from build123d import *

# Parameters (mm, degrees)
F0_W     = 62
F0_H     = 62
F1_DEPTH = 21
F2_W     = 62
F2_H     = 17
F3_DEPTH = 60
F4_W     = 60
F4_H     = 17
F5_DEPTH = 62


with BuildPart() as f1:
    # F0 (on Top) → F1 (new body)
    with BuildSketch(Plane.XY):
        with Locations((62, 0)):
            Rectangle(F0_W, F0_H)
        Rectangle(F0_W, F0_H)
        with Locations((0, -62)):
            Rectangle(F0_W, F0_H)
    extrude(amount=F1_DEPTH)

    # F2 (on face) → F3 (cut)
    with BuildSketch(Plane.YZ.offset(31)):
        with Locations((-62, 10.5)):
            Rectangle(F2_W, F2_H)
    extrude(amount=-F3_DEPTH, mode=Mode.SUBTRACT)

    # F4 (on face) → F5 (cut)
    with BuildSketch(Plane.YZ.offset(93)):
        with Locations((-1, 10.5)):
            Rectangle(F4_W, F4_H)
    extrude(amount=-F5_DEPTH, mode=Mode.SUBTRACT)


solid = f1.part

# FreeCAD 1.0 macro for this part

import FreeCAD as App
import Part
import Sketcher
Q = App.Units.Quantity

doc = App.newDocument("Part")
body = doc.addObject("PartDesign::Body", "Body")

# Sketch on XY plane
sketch1 = doc.addObject("Sketcher::SketchObject", "Sketch")
body.addObject(sketch1)
sketch1.AttachmentSupport = (doc.XY_Plane, [""])
sketch1.MapMode = "FlatFace"
sketch1.addGeometry([
    Part.LineSegment(App.Vector(93, -31, 0), App.Vector(93, 31, 0)),  # 0
    Part.LineSegment(App.Vector(93, 31, 0), App.Vector(-31, 31, 0)),  # 1
    Part.LineSegment(App.Vector(-31, 31, 0), App.Vector(-31, -93, 0)),  # 2
    Part.LineSegment(App.Vector(-31, -93, 0), App.Vector(31, -93, 0)),  # 3
    Part.LineSegment(App.Vector(31, -93, 0), App.Vector(31, -31, 0)),  # 4
    Part.LineSegment(App.Vector(31, -31, 0), App.Vector(93, -31, 0)),  # 5
], False)
sketch1.addConstraint([
    Sketcher.Constraint("Coincident", 0, 2, 1, 1),
    Sketcher.Constraint("Coincident", 1, 2, 2, 1),
    Sketcher.Constraint("Coincident", 2, 2, 3, 1),
    Sketcher.Constraint("Coincident", 3, 2, 4, 1),
    Sketcher.Constraint("Coincident", 4, 2, 5, 1),
    Sketcher.Constraint("Coincident", 5, 2, 0, 1),
    Sketcher.Constraint("Vertical", 0),
    Sketcher.Constraint("Horizontal", 1),
    Sketcher.Constraint("Vertical", 2),
    Sketcher.Constraint("Horizontal", 3),
    Sketcher.Constraint("Vertical", 4),
    Sketcher.Constraint("Horizontal", 5),
    Sketcher.Constraint("Symmetric", 1, 2, 4, 2, -1, 1),
    Sketcher.Constraint("Equal", 3, 5),
    Sketcher.Constraint("Equal", 5, 0),
    Sketcher.Constraint("Equal", 1, 2),
    Sketcher.Constraint("DistanceX", 1, 2, 1, 1, Q("124 mm")),
])
pad1 = doc.addObject("PartDesign::Pad", "Pad")
body.addObject(pad1)
pad1.Profile = sketch1
pad1.Length = 21

# Sketch on YZ plane
sketch2 = doc.addObject("Sketcher::SketchObject", "Sketch001")
body.addObject(sketch2)
sketch2.AttachmentSupport = (doc.YZ_Plane, [""])
sketch2.MapMode = "FlatFace"
sketch2.AttachmentOffset = App.Placement(App.Vector(0, 0, 31), App.Rotation())
sketch2.addGeometry([
    Part.LineSegment(App.Vector(-93, 19, 0), App.Vector(-93, 2, 0)),
    Part.LineSegment(App.Vector(-93, 2, 0), App.Vector(-31, 2, 0)),
    Part.LineSegment(App.Vector(-31, 2, 0), App.Vector(-31, 19, 0)),
    Part.LineSegment(App.Vector(-31, 19, 0), App.Vector(-93, 19, 0)),
], False)
sketch2.addConstraint([
    Sketcher.Constraint("Coincident", 0, 2, 1, 1),
    Sketcher.Constraint("Coincident", 1, 2, 2, 1),
    Sketcher.Constraint("Coincident", 2, 2, 3, 1),
    Sketcher.Constraint("Coincident", 3, 2, 0, 1),
    Sketcher.Constraint("Vertical", 0),
    Sketcher.Constraint("Horizontal", 1),
    Sketcher.Constraint("Vertical", 2),
    Sketcher.Constraint("Horizontal", 3),
    Sketcher.Constraint("DistanceX", 1, 1, 1, 2, Q("62 mm")),
    Sketcher.Constraint("DistanceY", 0, 2, 0, 1, Q("17 mm")),
    Sketcher.Constraint("DistanceX", 0, 2, -1, 1, Q("93 mm")),
    Sketcher.Constraint("DistanceY", -1, 1, 0, 2, Q("2 mm")),
])
pocket1 = doc.addObject("PartDesign::Pocket", "Pocket")
body.addObject(pocket1)
pocket1.Profile = sketch2
pocket1.Length = 60

# Sketch on YZ plane
sketch3 = doc.addObject("Sketcher::SketchObject", "Sketch002")
body.addObject(sketch3)
sketch3.AttachmentSupport = (doc.YZ_Plane, [""])
sketch3.MapMode = "FlatFace"
sketch3.AttachmentOffset = App.Placement(App.Vector(0, 0, 93), App.Rotation())
sketch3.addGeometry([
    Part.LineSegment(App.Vector(-31, 19, 0), App.Vector(-31, 2, 0)),
    Part.LineSegment(App.Vector(-31, 2, 0), App.Vector(29, 2, 0)),
    Part.LineSegment(App.Vector(29, 2, 0), App.Vector(29, 19, 0)),
    Part.LineSegment(App.Vector(29, 19, 0), App.Vector(-31, 19, 0)),
], False)
sketch3.addConstraint([
    Sketcher.Constraint("Coincident", 0, 2, 1, 1),
    Sketcher.Constraint("Coincident", 1, 2, 2, 1),
    Sketcher.Constraint("Coincident", 2, 2, 3, 1),
    Sketcher.Constraint("Coincident", 3, 2, 0, 1),
    Sketcher.Constraint("Vertical", 0),
    Sketcher.Constraint("Horizontal", 1),
    Sketcher.Constraint("Vertical", 2),
    Sketcher.Constraint("Horizontal", 3),
    Sketcher.Constraint("DistanceX", 1, 1, 1, 2, Q("60 mm")),
    Sketcher.Constraint("DistanceY", 0, 2, 0, 1, Q("17 mm")),
    Sketcher.Constraint("DistanceX", 0, 2, -1, 1, Q("31 mm")),
    Sketcher.Constraint("DistanceY", -1, 1, 0, 2, Q("2 mm")),
])
pocket2 = doc.addObject("PartDesign::Pocket", "Pocket001")
body.addObject(pocket2)
pocket2.Profile = sketch3
pocket2.Length = 62

doc.recompute()
